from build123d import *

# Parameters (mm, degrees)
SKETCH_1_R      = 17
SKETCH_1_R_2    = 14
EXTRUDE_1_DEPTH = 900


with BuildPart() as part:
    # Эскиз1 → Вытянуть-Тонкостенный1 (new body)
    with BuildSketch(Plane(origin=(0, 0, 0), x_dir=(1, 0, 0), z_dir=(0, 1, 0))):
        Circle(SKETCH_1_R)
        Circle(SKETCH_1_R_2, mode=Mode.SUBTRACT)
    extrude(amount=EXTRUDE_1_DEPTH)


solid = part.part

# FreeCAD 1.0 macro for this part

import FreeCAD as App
import Part
import Sketcher

V = App.Vector
Q = App.Units.Quantity

doc = App.newDocument("Part")
body = doc.addObject("PartDesign::Body", "Body")

sketch1 = doc.addObject("Sketcher::SketchObject", "Sketch")
body.addObject(sketch1)
sketch1.AttachmentSupport = (doc.XZ_Plane, [""])
sketch1.MapMode = "FlatFace"
sketch1.addGeometry(Part.Circle(V(0, 0, 0), V(0, 0, 1), 17), False)
sketch1.addGeometry(Part.Circle(V(0, 0, 0), V(0, 0, 1), 14), False)
sketch1.addConstraint(Sketcher.Constraint("Coincident", 0, 3, -1, 1))
sketch1.addConstraint(Sketcher.Constraint("Coincident", 1, 3, -1, 1))
sketch1.addConstraint(Sketcher.Constraint("Diameter", 0, Q("34 mm")))
sketch1.addConstraint(Sketcher.Constraint("Diameter", 1, Q("28 mm")))
pad1 = doc.addObject("PartDesign::Pad", "Pad")
body.addObject(pad1)
pad1.Profile = sketch1
pad1.Length = 900
pad1.Reversed = True

doc.recompute()
